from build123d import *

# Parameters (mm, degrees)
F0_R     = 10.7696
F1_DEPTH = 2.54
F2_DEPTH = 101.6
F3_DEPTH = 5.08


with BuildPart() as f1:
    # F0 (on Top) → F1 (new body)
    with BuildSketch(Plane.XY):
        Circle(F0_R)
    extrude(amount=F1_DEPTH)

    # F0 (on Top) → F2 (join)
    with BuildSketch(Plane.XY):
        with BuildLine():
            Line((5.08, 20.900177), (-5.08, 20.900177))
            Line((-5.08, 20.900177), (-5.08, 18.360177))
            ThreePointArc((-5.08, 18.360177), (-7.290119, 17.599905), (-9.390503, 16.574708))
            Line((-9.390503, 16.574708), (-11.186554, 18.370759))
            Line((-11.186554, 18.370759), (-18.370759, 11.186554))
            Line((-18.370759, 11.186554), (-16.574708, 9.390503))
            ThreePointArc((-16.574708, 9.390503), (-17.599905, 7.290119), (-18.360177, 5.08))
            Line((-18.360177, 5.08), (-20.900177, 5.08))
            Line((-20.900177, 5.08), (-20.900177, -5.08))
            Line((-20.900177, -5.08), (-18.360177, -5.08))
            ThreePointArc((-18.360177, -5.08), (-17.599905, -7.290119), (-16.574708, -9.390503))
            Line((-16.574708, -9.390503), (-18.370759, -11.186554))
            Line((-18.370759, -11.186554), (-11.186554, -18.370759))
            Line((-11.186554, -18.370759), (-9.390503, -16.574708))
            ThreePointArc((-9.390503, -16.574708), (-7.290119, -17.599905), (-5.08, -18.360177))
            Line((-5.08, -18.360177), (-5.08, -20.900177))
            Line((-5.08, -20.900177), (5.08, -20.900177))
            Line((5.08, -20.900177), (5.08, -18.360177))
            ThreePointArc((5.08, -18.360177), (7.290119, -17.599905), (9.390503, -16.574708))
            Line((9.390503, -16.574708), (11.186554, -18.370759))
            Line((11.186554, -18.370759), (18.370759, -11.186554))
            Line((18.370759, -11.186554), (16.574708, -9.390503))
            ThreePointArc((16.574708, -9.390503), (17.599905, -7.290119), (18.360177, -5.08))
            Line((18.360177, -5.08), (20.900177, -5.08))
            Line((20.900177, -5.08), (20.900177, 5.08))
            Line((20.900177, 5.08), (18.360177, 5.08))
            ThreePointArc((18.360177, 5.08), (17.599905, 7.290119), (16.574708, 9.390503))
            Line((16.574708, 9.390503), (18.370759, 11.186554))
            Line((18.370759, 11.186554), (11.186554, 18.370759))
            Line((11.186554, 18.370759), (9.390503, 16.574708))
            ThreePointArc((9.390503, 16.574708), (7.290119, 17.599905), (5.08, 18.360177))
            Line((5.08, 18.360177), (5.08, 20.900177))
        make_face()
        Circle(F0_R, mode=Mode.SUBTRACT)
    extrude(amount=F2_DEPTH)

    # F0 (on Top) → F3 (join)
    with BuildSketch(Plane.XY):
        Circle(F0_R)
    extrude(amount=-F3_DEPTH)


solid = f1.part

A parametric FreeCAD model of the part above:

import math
import FreeCAD as App
import Part
import Sketcher

V = App.Vector
Q = App.Units.Quantity

doc = App.newDocument("Part")
params = doc.addObject("Spreadsheet::Sheet", "Params")
for row, (alias, value) in enumerate([
    ("sketch1_diameter", "0.848 in"),
    ("pad1_length", "0.1 in"),
    ("sketch2_diameter", "0.848 in"),
    ("sketch2_width", "0.4 in"),
    ("sketch2_width2", "0.1 in"),
    ("sketch2_length", "0.1 in"),
    ("sketch2_length2", "0.4 in"),
    ("pad2_length", "4 in"),
    ("sketch3_diameter", "0.848 in"),
    ("pad3_length", "0.2 in"),
], start=1):
    params.set(f"A{row}", alias)
    params.set(f"B{row}", "=" + value)
    params.setAlias(f"B{row}", alias)

body = doc.addObject("PartDesign::Body", "Body")

sketch1 = body.newObject("Sketcher::SketchObject", "Sketch")
sketch1.AttachmentSupport = (doc.getObject("XY_Plane"), [""])
sketch1.MapMode = "FlatFace"
sketch1.addGeometry(Part.Circle(V(0, 0, 0), V(0, 0, 1), 11), False)
sketch1.addConstraint(Sketcher.Constraint("Coincident", 0, 3, -1, 1))
sketch1.addConstraint(Sketcher.Constraint("Diameter", 0, Q("0.848 in")))
sketch1.setExpression("Constraints[1]", "Params.sketch1_diameter")
pad1 = body.newObject("PartDesign::Pad", "Pad")
pad1.Profile = sketch1
pad1.setExpression("Length", "Params.pad1_length")

sketch2 = body.newObject("Sketcher::SketchObject", "Sketch001")
sketch2.AttachmentSupport = (doc.getObject("XY_Plane"), [""])
sketch2.MapMode = "FlatFace"
sketch2.addGeometry(Part.LineSegment(V(5.08, 20.900177, 0), V(-5.08, 20.900177, 0)), False)
sketch2.addGeometry(Part.LineSegment(V(-5.08, 20.900177, 0), V(-5.08, 18.360177, 0)), False)
sketch2.addGeometry(Part.ArcOfCircle(Part.Circle(V(0.000007, -0.000015, 0), V(0, 0, 1), 19.050016), math.radians(105.466018), math.radians(119.533986)), False)
sketch2.addGeometry(Part.LineSegment(V(-9.390503, 16.574708, 0), V(-11.186554, 18.370759, 0)), False)
sketch2.addGeometry(Part.LineSegment(V(-11.186554, 18.370759, 0), V(-18.370759, 11.186554, 0)), False)
sketch2.addGeometry(Part.LineSegment(V(-18.370759, 11.186554, 0), V(-16.574708, 9.390503, 0)), False)
sketch2.addGeometry(Part.ArcOfCircle(Part.Circle(V(0.000015, -0.000007, 0), V(0, 0, 1), 19.050016), math.radians(150.466014), math.radians(164.533982)), False)
sketch2.addGeometry(Part.LineSegment(V(-18.360177, 5.08, 0), V(-20.900177, 5.08, 0)), False)
sketch2.addGeometry(Part.LineSegment(V(-20.900177, 5.08, 0), V(-20.900177, -5.08, 0)), False)
sketch2.addGeometry(Part.LineSegment(V(-20.900177, -5.08, 0), V(-18.360177, -5.08, 0)), False)
sketch2.addGeometry(Part.ArcOfCircle(Part.Circle(V(0.000015, 0.000007, 0), V(0, 0, 1), 19.050016), math.radians(-164.533982), math.radians(-150.466014)), False)
sketch2.addGeometry(Part.LineSegment(V(-16.574708, -9.390503, 0), V(-18.370759, -11.186554, 0)), False)
sketch2.addGeometry(Part.LineSegment(V(-18.370759, -11.186554, 0), V(-11.186554, -18.370759, 0)), False)
sketch2.addGeometry(Part.LineSegment(V(-11.186554, -18.370759, 0), V(-9.390503, -16.574708, 0)), False)
sketch2.addGeometry(Part.ArcOfCircle(Part.Circle(V(0.000007, 0.000015, 0), V(0, 0, 1), 19.050016), math.radians(-119.533986), math.radians(-105.466018)), False)
sketch2.addGeometry(Part.LineSegment(V(-5.08, -18.360177, 0), V(-5.08, -20.900177, 0)), False)
sketch2.addGeometry(Part.LineSegment(V(-5.08, -20.900177, 0), V(5.08, -20.900177, 0)), False)
sketch2.addGeometry(Part.LineSegment(V(5.08, -20.900177, 0), V(5.08, -18.360177, 0)), False)
sketch2.addGeometry(Part.ArcOfCircle(Part.Circle(V(-0.000007, 0.000015, 0), V(0, 0, 1), 19.050016), math.radians(-74.533982), math.radians(-60.466014)), False)
sketch2.addGeometry(Part.LineSegment(V(9.390503, -16.574708, 0), V(11.186554, -18.370759, 0)), False)
sketch2.addGeometry(Part.LineSegment(V(11.186554, -18.370759, 0), V(18.370759, -11.186554, 0)), False)
sketch2.addGeometry(Part.LineSegment(V(18.370759, -11.186554, 0), V(16.574708, -9.390503, 0)), False)
sketch2.addGeometry(Part.ArcOfCircle(Part.Circle(V(-0.000015, 0.000007, 0), V(0, 0, 1), 19.050016), math.radians(-29.533986), math.radians(-15.466018)), False)
sketch2.addGeometry(Part.LineSegment(V(18.360177, -5.08, 0), V(20.900177, -5.08, 0)), False)
sketch2.addGeometry(Part.LineSegment(V(20.900177, -5.08, 0), V(20.900177, 5.08, 0)), False)
sketch2.addGeometry(Part.LineSegment(V(20.900177, 5.08, 0), V(18.360177, 5.08, 0)), False)
sketch2.addGeometry(Part.ArcOfCircle(Part.Circle(V(-0.000015, -0.000007, 0), V(0, 0, 1), 19.050016), math.radians(15.466018), math.radians(29.533986)), False)
sketch2.addGeometry(Part.LineSegment(V(16.574708, 9.390503, 0), V(18.370759, 11.186554, 0)), False)
sketch2.addGeometry(Part.LineSegment(V(18.370759, 11.186554, 0), V(11.186554, 18.370759, 0)), False)
sketch2.addGeometry(Part.LineSegment(V(11.186554, 18.370759, 0), V(9.390503, 16.574708, 0)), False)
sketch2.addGeometry(Part.ArcOfCircle(Part.Circle(V(-0.000007, -0.000015, 0), V(0, 0, 1), 19.050016), math.radians(60.466014), math.radians(74.533982)), False)
sketch2.addGeometry(Part.LineSegment(V(5.08, 18.360177, 0), V(5.08, 20.900177, 0)), False)
sketch2.addGeometry(Part.Circle(V(0, 0, 0), V(0, 0, 1), 10.7696), False)
sketch2.addConstraint(Sketcher.Constraint("Coincident", 0, 2, 1, 1))
sketch2.addConstraint(Sketcher.Constraint("Coincident", 1, 2, 2, 1))
sketch2.addConstraint(Sketcher.Constraint("Coincident", 2, 2, 3, 1))
sketch2.addConstraint(Sketcher.Constraint("Coincident", 3, 2, 4, 1))
sketch2.addConstraint(Sketcher.Constraint("Coincident", 4, 2, 5, 1))
sketch2.addConstraint(Sketcher.Constraint("Coincident", 5, 2, 6, 1))
sketch2.addConstraint(Sketcher.Constraint("Coincident", 6, 2, 7, 1))
sketch2.addConstraint(Sketcher.Constraint("Coincident", 7, 2, 8, 1))
sketch2.addConstraint(Sketcher.Constraint("Coincident", 8, 2, 9, 1))
sketch2.addConstraint(Sketcher.Constraint("Coincident", 9, 2, 10, 1))
sketch2.addConstraint(Sketcher.Constraint("Coincident", 10, 2, 11, 1))
sketch2.addConstraint(Sketcher.Constraint("Coincident", 11, 2, 12, 1))
sketch2.addConstraint(Sketcher.Constraint("Coincident", 12, 2, 13, 1))
sketch2.addConstraint(Sketcher.Constraint("Coincident", 13, 2, 14, 1))
sketch2.addConstraint(Sketcher.Constraint("Coincident", 14, 2, 15, 1))
sketch2.addConstraint(Sketcher.Constraint("Coincident", 15, 2, 16, 1))
sketch2.addConstraint(Sketcher.Constraint("Coincident", 16, 2, 17, 1))
sketch2.addConstraint(Sketcher.Constraint("Coincident", 17, 2, 18, 1))
sketch2.addConstraint(Sketcher.Constraint("Coincident", 18, 2, 19, 1))
sketch2.addConstraint(Sketcher.Constraint("Coincident", 19, 2, 20, 1))
sketch2.addConstraint(Sketcher.Constraint("Coincident", 20, 2, 21, 1))
sketch2.addConstraint(Sketcher.Constraint("Coincident", 21, 2, 22, 1))
sketch2.addConstraint(Sketcher.Constraint("Coincident", 22, 2, 23, 1))
sketch2.addConstraint(Sketcher.Constraint("Coincident", 23, 2, 24, 1))
sketch2.addConstraint(Sketcher.Constraint("Coincident", 24, 2, 25, 1))
sketch2.addConstraint(Sketcher.Constraint("Coincident", 25, 2, 26, 1))
sketch2.addConstraint(Sketcher.Constraint("Coincident", 26, 2, 27, 1))
sketch2.addConstraint(Sketcher.Constraint("Coincident", 27, 2, 28, 1))
sketch2.addConstraint(Sketcher.Constraint("Coincident", 28, 2, 29, 1))
sketch2.addConstraint(Sketcher.Constraint("Coincident", 29, 2, 30, 1))
sketch2.addConstraint(Sketcher.Constraint("Coincident", 30, 2, 31, 1))
sketch2.addConstraint(Sketcher.Constraint("Coincident", 31, 2, 0, 1))
sketch2.addConstraint(Sketcher.Constraint("Horizontal", 0))
sketch2.addConstraint(Sketcher.Constraint("Vertical", 1))
sketch2.addConstraint(Sketcher.Constraint("Horizontal", 7))
sketch2.addConstraint(Sketcher.Constraint("Vertical", 8))
sketch2.addConstraint(Sketcher.Constraint("Horizontal", 9))
sketch2.addConstraint(Sketcher.Constraint("Vertical", 15))
sketch2.addConstraint(Sketcher.Constraint("Horizontal", 16))
sketch2.addConstraint(Sketcher.Constraint("Vertical", 17))
sketch2.addConstraint(Sketcher.Constraint("Horizontal", 23))
sketch2.addConstraint(Sketcher.Constraint("Vertical", 24))
sketch2.addConstraint(Sketcher.Constraint("Horizontal", 25))
sketch2.addConstraint(Sketcher.Constraint("Vertical", 31))
sketch2.addConstraint(Sketcher.Constraint("Coincident", 32, 3, -1, 1))
sketch2.addConstraint(Sketcher.Constraint("Equal", 2, 6))
sketch2.addConstraint(Sketcher.Constraint("Equal", 6, 10))
sketch2.addConstraint(Sketcher.Constraint("Equal", 10, 14))
sketch2.addConstraint(Sketcher.Constraint("Equal", 14, 18))
sketch2.addConstraint(Sketcher.Constraint("Equal", 18, 22))
sketch2.addConstraint(Sketcher.Constraint("Equal", 22, 26))
sketch2.addConstraint(Sketcher.Constraint("Equal", 26, 30))
sketch2.addConstraint(Sketcher.Constraint("Symmetric", 2, 3, 18, 3, -1, 1))
sketch2.addConstraint(Sketcher.Constraint("Symmetric", 6, 3, 22, 3, -1, 1))
sketch2.addConstraint(Sketcher.Constraint("Symmetric", 10, 3, 26, 3, -1, 1))
sketch2.addConstraint(Sketcher.Constraint("Symmetric", 14, 3, 30, 3, -1, 1))
sketch2.addConstraint(Sketcher.Constraint("Symmetric", 0, 2, 16, 2, -1, 1))
sketch2.addConstraint(Sketcher.Constraint("Symmetric", 3, 2, 19, 2, -1, 1))
sketch2.addConstraint(Sketcher.Constraint("Symmetric", 4, 2, 20, 2, -1, 1))
sketch2.addConstraint(Sketcher.Constraint("Symmetric", 7, 2, 23, 2, -1, 1))
sketch2.addConstraint(Sketcher.Constraint("Symmetric", 11, 2, 27, 2, -1, 1))
sketch2.addConstraint(Sketcher.Constraint("Symmetric", 12, 2, 28, 2, -1, 1))
sketch2.addConstraint(Sketcher.Constraint("Symmetric", 14, 3, 18, 3, -2))
sketch2.addConstraint(Sketcher.Constraint("Symmetric", 10, 3, 22, 3, -2))
sketch2.addConstraint(Sketcher.Constraint("Symmetric", 12, 2, 19, 2, -2))
sketch2.addConstraint(Sketcher.Constraint("Symmetric", 11, 2, 20, 2, -2))
sketch2.addConstraint(Sketcher.Constraint("Perpendicular", 3, 4))
sketch2.addConstraint(Sketcher.Constraint("Perpendicular", 4, 5))
sketch2.addConstraint(Sketcher.Constraint("Perpendicular", 5, 11))
sketch2.addConstraint(Sketcher.Constraint("Perpendicular", 11, 12))
sketch2.addConstraint(Sketcher.Constraint("Perpendicular", 12, 13))
sketch2.addConstraint(Sketcher.Constraint("Perpendicular", 13, 19))
sketch2.addConstraint(Sketcher.Constraint("Perpendicular", 20, 21))
sketch2.addConstraint(Sketcher.Constraint("Perpendicular", 21, 27))
sketch2.addConstraint(Sketcher.Constraint("Perpendicular", 28, 29))
sketch2.addConstraint(Sketcher.Constraint("Horizontal", 14, 2, 17, 2))
sketch2.addConstraint(Sketcher.Constraint("Horizontal", 9, 2, 22, 2))
sketch2.addConstraint(Sketcher.Constraint("Horizontal", 7, 2, 24, 2))
sketch2.addConstraint(Sketcher.Constraint("Horizontal", 1, 2, 30, 2))
sketch2.addConstraint(Sketcher.Constraint("Equal", 25, 1))
sketch2.addConstraint(Sketcher.Constraint("Equal", 16, 8))
sketch2.addConstraint(Sketcher.Constraint("Equal", 3, 5))
sketch2.addConstraint(Sketcher.Constraint("Diameter", 32, Q("0.848 in")))
sketch2.addConstraint(Sketcher.Constraint("DistanceX", 0, 2, 0, 1, Q("0.4 in")))
sketch2.addConstraint(Sketcher.Constraint("DistanceX", 7, 2, 7, 1, Q("0.1 in")))
sketch2.addConstraint(Sketcher.Constraint("Distance", 3, Q("0.1 in")))
sketch2.addConstraint(Sketcher.Constraint("Distance", 4, Q("0.4 in")))
sketch2.addConstraint(Sketcher.Constraint("Radius", 2, 19.050016))
sketch2.addConstraint(Sketcher.Constraint("DistanceY", 22, 3, 2, 2, 16.574701))
sketch2.addConstraint(Sketcher.Constraint("DistanceY", -1, 1, 2, 2, 16.574708))
sketch2.addConstraint(Sketcher.Constraint("DistanceX", 4, 2, -1, 1, 18.370759))
sketch2.addConstraint(Sketcher.Constraint("DistanceY", 22, 3, 0, 2, 20.90017))
sketch2.setExpression("Constraints[82]", "Params.sketch2_diameter")
sketch2.setExpression("Constraints[83]", "Params.sketch2_width")
sketch2.setExpression("Constraints[84]", "Params.sketch2_width2")
sketch2.setExpression("Constraints[85]", "Params.sketch2_length")
sketch2.setExpression("Constraints[86]", "Params.sketch2_length2")
pad2 = body.newObject("PartDesign::Pad", "Pad001")
pad2.Profile = sketch2
pad2.setExpression("Length", "Params.pad2_length")

sketch3 = body.newObject("Sketcher::SketchObject", "Sketch002")
sketch3.AttachmentSupport = (doc.getObject("XY_Plane"), [""])
sketch3.MapMode = "FlatFace"
sketch3.addGeometry(Part.Circle(V(0, 0, 0), V(0, 0, 1), 11), False)
sketch3.addConstraint(Sketcher.Constraint("Coincident", 0, 3, -1, 1))
sketch3.addConstraint(Sketcher.Constraint("Diameter", 0, Q("0.848 in")))
sketch3.setExpression("Constraints[1]", "Params.sketch3_diameter")
pad3 = body.newObject("PartDesign::Pad", "Pad002")
pad3.Profile = sketch3
pad3.setExpression("Length", "Params.pad3_length")
pad3.Reversed = True

doc.recompute()
